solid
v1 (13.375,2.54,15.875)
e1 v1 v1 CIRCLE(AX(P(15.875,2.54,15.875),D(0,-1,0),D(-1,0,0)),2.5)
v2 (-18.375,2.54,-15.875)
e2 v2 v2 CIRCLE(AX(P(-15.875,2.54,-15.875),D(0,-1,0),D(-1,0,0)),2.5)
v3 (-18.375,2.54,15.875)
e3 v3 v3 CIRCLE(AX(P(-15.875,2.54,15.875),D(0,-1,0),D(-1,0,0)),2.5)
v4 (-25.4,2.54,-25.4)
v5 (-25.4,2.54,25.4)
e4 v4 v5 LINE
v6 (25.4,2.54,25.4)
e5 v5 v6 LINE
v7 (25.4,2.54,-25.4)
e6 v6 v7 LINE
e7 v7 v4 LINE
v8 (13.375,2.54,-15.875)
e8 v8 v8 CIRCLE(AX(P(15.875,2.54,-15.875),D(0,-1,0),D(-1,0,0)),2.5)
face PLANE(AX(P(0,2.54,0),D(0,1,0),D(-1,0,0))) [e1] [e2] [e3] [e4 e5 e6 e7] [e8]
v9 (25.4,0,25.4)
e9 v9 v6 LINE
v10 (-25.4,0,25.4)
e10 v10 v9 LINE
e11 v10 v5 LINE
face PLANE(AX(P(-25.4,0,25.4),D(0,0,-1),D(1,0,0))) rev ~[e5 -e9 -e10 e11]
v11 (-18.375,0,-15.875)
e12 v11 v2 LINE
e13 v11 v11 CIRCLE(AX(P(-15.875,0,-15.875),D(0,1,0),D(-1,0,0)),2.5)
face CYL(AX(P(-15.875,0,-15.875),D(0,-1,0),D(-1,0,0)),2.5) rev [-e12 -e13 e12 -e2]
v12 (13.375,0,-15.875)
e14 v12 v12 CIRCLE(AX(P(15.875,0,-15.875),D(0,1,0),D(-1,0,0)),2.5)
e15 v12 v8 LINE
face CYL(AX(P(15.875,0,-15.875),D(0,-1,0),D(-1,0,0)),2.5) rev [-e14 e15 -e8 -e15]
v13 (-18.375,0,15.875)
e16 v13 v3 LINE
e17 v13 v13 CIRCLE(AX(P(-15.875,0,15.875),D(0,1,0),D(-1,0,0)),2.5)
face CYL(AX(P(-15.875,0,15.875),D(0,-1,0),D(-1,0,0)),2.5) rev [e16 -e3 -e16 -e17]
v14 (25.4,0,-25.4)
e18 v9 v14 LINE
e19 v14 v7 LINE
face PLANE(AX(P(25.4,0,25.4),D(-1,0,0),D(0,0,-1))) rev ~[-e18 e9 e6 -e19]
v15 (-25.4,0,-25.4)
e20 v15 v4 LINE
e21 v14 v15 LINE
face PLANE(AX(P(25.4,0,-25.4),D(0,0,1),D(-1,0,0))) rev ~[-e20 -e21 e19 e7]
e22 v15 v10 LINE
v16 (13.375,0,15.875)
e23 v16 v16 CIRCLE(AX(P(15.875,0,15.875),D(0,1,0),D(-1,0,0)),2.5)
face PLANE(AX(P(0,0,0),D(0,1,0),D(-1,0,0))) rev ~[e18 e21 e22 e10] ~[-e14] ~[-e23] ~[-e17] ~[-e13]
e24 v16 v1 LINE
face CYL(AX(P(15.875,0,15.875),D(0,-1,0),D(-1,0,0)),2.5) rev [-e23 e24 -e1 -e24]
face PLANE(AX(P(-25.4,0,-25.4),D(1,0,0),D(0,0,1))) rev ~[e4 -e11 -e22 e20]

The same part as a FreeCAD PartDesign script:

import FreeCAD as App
import Part
import Sketcher
Q = App.Units.Quantity


def add_polygon(sketch, points):
    """Adds a closed chain of lines whose ends are joined by coincident constraints."""
    first, n = sketch.GeometryCount, len(points)
    for a, b in zip(points, points[1:] + points[:1]):
        sketch.addGeometry(Part.LineSegment(App.Vector(*a, 0), App.Vector(*b, 0)), False)
    for i in range(n):
        sketch.addConstraint(Sketcher.Constraint("Coincident", first + i, 2, first + (i + 1) % n, 1))

doc = App.newDocument("Part")
body = doc.addObject("PartDesign::Body", "Body")

# Sketch on XZ plane
sketch1 = body.newObject("Sketcher::SketchObject", "Sketch")
sketch1.AttachmentSupport = (doc.getObject("XZ_Plane"), [""])
sketch1.MapMode = "FlatFace"
add_polygon(sketch1, [(25.4, 25.4), (25.4, -25.4), (-25.4, -25.4), (-25.4, 25.4)])  # lines 0-3
sketch1.addGeometry(Part.Circle(App.Vector(15.875, 15.875, 0), App.Vector(0, 0, 1), 2.5), False)  # 4
sketch1.addGeometry(Part.Circle(App.Vector(15.875, -15.875, 0), App.Vector(0, 0, 1), 2.5), False)  # 5
sketch1.addGeometry(Part.Circle(App.Vector(-15.875, -15.875, 0), App.Vector(0, 0, 1), 2.5), False)  # 6
sketch1.addGeometry(Part.Circle(App.Vector(-15.875, 15.875, 0), App.Vector(0, 0, 1), 2.5), False)  # 7
sketch1.addConstraint([
    Sketcher.Constraint("Vertical", 0),
    Sketcher.Constraint("Horizontal", 1),
    Sketcher.Constraint("Vertical", 2),
    Sketcher.Constraint("Horizontal", 3),
    Sketcher.Constraint("Equal", 4, 5),
    Sketcher.Constraint("Equal", 5, 6),
    Sketcher.Constraint("Equal", 6, 7),
    Sketcher.Constraint("Symmetric", 4, 3, 6, 3, -1, 1),
    Sketcher.Constraint("Symmetric", 5, 3, 7, 3, -1, 1),
    Sketcher.Constraint("Symmetric", 0, 2, 2, 2, -1, 1),
    Sketcher.Constraint("Symmetric", 5, 3, 6, 3, -2),
    Sketcher.Constraint("Equal", 3, 0),
    Sketcher.Constraint("DistanceX", 1, 2, 1, 1, Q("2 in")),
    Sketcher.Constraint("Diameter", 4, 5.0),
    Sketcher.Constraint("DistanceY", 5, 3, 4, 3, Q("1.25 in")),
    Sketcher.Constraint("DistanceX", 6, 3, 5, 3, Q("1.25 in")),
])
pad1 = body.newObject("PartDesign::Pad", "Pad")
pad1.Profile = sketch1
pad1.Length = Q("0.1 in")
pad1.Reversed = True

doc.recompute()
